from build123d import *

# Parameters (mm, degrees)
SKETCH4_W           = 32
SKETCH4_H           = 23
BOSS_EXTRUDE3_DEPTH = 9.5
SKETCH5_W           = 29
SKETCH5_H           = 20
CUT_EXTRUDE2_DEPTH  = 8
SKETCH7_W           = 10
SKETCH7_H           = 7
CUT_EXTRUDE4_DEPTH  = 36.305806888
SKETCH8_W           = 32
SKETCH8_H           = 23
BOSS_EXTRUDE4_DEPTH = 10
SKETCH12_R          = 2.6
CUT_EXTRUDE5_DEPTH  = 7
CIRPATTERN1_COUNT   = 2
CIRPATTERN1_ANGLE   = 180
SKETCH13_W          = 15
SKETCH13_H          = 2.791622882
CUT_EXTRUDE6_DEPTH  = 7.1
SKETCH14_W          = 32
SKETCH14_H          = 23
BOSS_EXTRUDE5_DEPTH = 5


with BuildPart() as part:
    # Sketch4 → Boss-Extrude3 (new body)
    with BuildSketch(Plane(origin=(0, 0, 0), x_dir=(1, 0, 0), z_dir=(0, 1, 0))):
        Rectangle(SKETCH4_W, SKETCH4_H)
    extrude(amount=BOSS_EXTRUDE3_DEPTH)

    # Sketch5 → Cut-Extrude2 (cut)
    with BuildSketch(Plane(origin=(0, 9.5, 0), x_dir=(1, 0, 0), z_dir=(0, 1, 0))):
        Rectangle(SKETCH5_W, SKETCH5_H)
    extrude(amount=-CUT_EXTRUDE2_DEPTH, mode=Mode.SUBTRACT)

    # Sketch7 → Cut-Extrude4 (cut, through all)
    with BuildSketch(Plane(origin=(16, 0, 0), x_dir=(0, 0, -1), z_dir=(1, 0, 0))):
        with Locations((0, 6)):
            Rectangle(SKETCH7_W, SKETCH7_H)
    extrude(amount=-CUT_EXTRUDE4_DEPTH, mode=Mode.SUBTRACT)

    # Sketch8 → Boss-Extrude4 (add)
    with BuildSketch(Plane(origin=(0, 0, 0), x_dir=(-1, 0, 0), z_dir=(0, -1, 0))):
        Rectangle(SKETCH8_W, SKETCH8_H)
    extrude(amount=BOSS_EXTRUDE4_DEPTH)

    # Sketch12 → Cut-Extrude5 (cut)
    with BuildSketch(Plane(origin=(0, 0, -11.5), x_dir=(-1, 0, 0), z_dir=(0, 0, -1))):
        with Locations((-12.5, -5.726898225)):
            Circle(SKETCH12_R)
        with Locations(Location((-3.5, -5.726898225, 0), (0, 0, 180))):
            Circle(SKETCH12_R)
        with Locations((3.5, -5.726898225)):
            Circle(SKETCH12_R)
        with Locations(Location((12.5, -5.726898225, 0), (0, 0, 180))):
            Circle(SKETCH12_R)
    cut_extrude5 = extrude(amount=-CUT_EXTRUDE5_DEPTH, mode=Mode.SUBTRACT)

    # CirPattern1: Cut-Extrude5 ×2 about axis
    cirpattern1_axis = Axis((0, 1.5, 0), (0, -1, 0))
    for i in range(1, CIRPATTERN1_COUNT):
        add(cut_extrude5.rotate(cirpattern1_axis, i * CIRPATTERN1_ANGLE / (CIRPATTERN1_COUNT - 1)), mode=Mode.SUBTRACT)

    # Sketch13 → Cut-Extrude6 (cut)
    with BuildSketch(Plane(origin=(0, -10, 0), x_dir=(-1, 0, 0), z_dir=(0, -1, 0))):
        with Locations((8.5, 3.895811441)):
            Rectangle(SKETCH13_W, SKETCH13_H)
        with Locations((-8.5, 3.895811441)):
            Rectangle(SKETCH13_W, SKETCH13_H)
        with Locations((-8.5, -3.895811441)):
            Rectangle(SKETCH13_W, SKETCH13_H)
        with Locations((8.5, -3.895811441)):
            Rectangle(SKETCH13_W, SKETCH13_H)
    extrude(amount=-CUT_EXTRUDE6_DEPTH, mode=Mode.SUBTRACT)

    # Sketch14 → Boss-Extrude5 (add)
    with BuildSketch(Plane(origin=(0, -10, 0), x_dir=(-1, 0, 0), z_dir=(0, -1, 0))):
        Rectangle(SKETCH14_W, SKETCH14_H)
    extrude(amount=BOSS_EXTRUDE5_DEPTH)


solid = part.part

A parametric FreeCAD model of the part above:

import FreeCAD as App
import Part
import Sketcher
from FreeCAD import Vector

doc = App.newDocument("Part")
body = doc.addObject("PartDesign::Body", "Body")

# Sketch on XZ plane
sketch1 = doc.addObject("Sketcher::SketchObject", "Sketch")
body.addObject(sketch1)
sketch1.AttachmentSupport = (doc.XZ_Plane, [""])
sketch1.MapMode = "FlatFace"
sketch1.addGeometry([
    Part.LineSegment(Vector(-16, -12, 0), Vector(-16, 12, 0)),
    Part.LineSegment(Vector(-16, 12, 0), Vector(16, 12, 0)),
    Part.LineSegment(Vector(16, 12, 0), Vector(16, -12, 0)),
    Part.LineSegment(Vector(16, -12, 0), Vector(-16, -12, 0)),
], False)
sketch1.addConstraint([
    Sketcher.Constraint("Coincident", 0, 2, 1, 1),
    Sketcher.Constraint("Coincident", 1, 2, 2, 1),
    Sketcher.Constraint("Coincident", 2, 2, 3, 1),
    Sketcher.Constraint("Coincident", 3, 2, 0, 1),
    Sketcher.Constraint("Vertical", 0),
    Sketcher.Constraint("Horizontal", 1),
    Sketcher.Constraint("Vertical", 2),
    Sketcher.Constraint("Horizontal", 3),
    Sketcher.Constraint("Symmetric", 0, 2, 2, 2, -1, 1),
    Sketcher.Constraint("DistanceX", 1, 1, 1, 2, 32.0),
    Sketcher.Constraint("DistanceY", 0, 1, 0, 2, 23.0),
])
pad1 = doc.addObject("PartDesign::Pad", "Pad")
body.addObject(pad1)
pad1.Profile = sketch1
pad1.Length = 9.5
pad1.Reversed = True

# Sketch on XZ plane
sketch2 = doc.addObject("Sketcher::SketchObject", "Sketch001")
body.addObject(sketch2)
sketch2.AttachmentSupport = (doc.XZ_Plane, [""])
sketch2.MapMode = "FlatFace"
sketch2.AttachmentOffset = App.Placement(Vector(0, 0, -9.5), App.Rotation())
sketch2.addGeometry([
    Part.LineSegment(Vector(-14, -10, 0), Vector(-14, 10, 0)),
    Part.LineSegment(Vector(-14, 10, 0), Vector(14, 10, 0)),
    Part.LineSegment(Vector(14, 10, 0), Vector(14, -10, 0)),
    Part.LineSegment(Vector(14, -10, 0), Vector(-14, -10, 0)),
], False)
sketch2.addConstraint([
    Sketcher.Constraint("Coincident", 0, 2, 1, 1),
    Sketcher.Constraint("Coincident", 1, 2, 2, 1),
    Sketcher.Constraint("Coincident", 2, 2, 3, 1),
    Sketcher.Constraint("Coincident", 3, 2, 0, 1),
    Sketcher.Constraint("Vertical", 0),
    Sketcher.Constraint("Horizontal", 1),
    Sketcher.Constraint("Vertical", 2),
    Sketcher.Constraint("Horizontal", 3),
    Sketcher.Constraint("Symmetric", 0, 2, 2, 2, -1, 1),
    Sketcher.Constraint("DistanceX", 1, 1, 1, 2, 29.0),
    Sketcher.Constraint("DistanceY", 0, 1, 0, 2, 20.0),
])
pocket1 = doc.addObject("PartDesign::Pocket", "Pocket")
body.addObject(pocket1)
pocket1.Profile = sketch2
pocket1.Length = 8
pocket1.Reversed = True

# Sketch on YZ plane
sketch3 = doc.addObject("Sketcher::SketchObject", "Sketch002")
body.addObject(sketch3)
sketch3.AttachmentSupport = (doc.YZ_Plane, [""])
sketch3.MapMode = "FlatFace"
sketch3.AttachmentOffset = App.Placement(Vector(0, 0, 16), App.Rotation())
sketch3.addGeometry([
    Part.LineSegment(Vector(10, 5, 0), Vector(2, 5, 0)),
    Part.LineSegment(Vector(2, 5, 0), Vector(2, -5, 0)),
    Part.LineSegment(Vector(2, -5, 0), Vector(10, -5, 0)),
    Part.LineSegment(Vector(10, -5, 0), Vector(10, 5, 0)),
], False)
sketch3.addConstraint([
    Sketcher.Constraint("Coincident", 0, 2, 1, 1),
    Sketcher.Constraint("Coincident", 1, 2, 2, 1),
    Sketcher.Constraint("Coincident", 2, 2, 3, 1),
    Sketcher.Constraint("Coincident", 3, 2, 0, 1),
    Sketcher.Constraint("Horizontal", 0),
    Sketcher.Constraint("Vertical", 1),
    Sketcher.Constraint("Horizontal", 2),
    Sketcher.Constraint("Vertical", 3),
    Sketcher.Constraint("DistanceX", 0, 2, 0, 1, 7.0),
    Sketcher.Constraint("DistanceY", 1, 2, 1, 1, 10.0),
    Sketcher.Constraint("DistanceY", -1, 1, 0, 2, 5.0),
    Sketcher.Constraint("DistanceX", -1, 1, 0, 2, 2.5),
])
pocket2 = doc.addObject("PartDesign::Pocket", "Pocket001")
body.addObject(pocket2)
pocket2.Profile = sketch3
pocket2.Type = "ThroughAll"

# Sketch on XZ plane
sketch4 = doc.addObject("Sketcher::SketchObject", "Sketch003")
body.addObject(sketch4)
sketch4.AttachmentSupport = (doc.XZ_Plane, [""])
sketch4.MapMode = "FlatFace"
sketch4.addGeometry([
    Part.LineSegment(Vector(16, -12, 0), Vector(16, 12, 0)),
    Part.LineSegment(Vector(16, 12, 0), Vector(-16, 12, 0)),
    Part.LineSegment(Vector(-16, 12, 0), Vector(-16, -12, 0)),
    Part.LineSegment(Vector(-16, -12, 0), Vector(16, -12, 0)),
], False)
sketch4.addConstraint([
    Sketcher.Constraint("Coincident", 0, 2, 1, 1),
    Sketcher.Constraint("Coincident", 1, 2, 2, 1),
    Sketcher.Constraint("Coincident", 2, 2, 3, 1),
    Sketcher.Constraint("Coincident", 3, 2, 0, 1),
    Sketcher.Constraint("Vertical", 0),
    Sketcher.Constraint("Horizontal", 1),
    Sketcher.Constraint("Vertical", 2),
    Sketcher.Constraint("Horizontal", 3),
    Sketcher.Constraint("Symmetric", 0, 2, 2, 2, -1, 1),
    Sketcher.Constraint("DistanceX", 1, 2, 1, 1, 32.0),
    Sketcher.Constraint("DistanceY", 0, 1, 0, 2, 23.0),
])
pad2 = doc.addObject("PartDesign::Pad", "Pad001")
body.addObject(pad2)
pad2.Profile = sketch4
pad2.Length = 10

# Sketch on XY plane
sketch5 = doc.addObject("Sketcher::SketchObject", "Sketch004")
body.addObject(sketch5)
sketch5.AttachmentSupport = (doc.XY_Plane, [""])
sketch5.MapMode = "FlatFace"
sketch5.AttachmentOffset = App.Placement(Vector(0, 0, -11.5), App.Rotation())
sketch5.addGeometry([
    Part.Circle(Vector(12.5, -5.7, 0), Vector(0, 0, 1), 2.6),
    Part.Circle(Vector(3.5, -5.7, 0), Vector(0, 0, 1), 2.6),
    Part.Circle(Vector(-3.5, -5.7, 0), Vector(0, 0, 1), 2.6),
    Part.Circle(Vector(-12.5, -5.7, 0), Vector(0, 0, 1), 2.6),
], False)
sketch5.addConstraint([
    Sketcher.Constraint("Equal", 0, 1),
    Sketcher.Constraint("Equal", 1, 2),
    Sketcher.Constraint("Equal", 2, 3),
    Sketcher.Constraint("Symmetric", 1, 3, 2, 3, -2),
    Sketcher.Constraint("Symmetric", 0, 3, 3, 3, -2),
    Sketcher.Constraint("Horizontal", 0, 3, 1, 3),
    Sketcher.Constraint("Diameter", 0, 5.2),
    Sketcher.Constraint("DistanceX", 1, 3, 0, 3, 9.0),
    Sketcher.Constraint("DistanceX", 2, 3, 1, 3, 7.0),
    Sketcher.Constraint("DistanceY", 0, 3, -1, 1, 5.726898),
])
pocket3 = doc.addObject("PartDesign::Pocket", "Pocket002")
body.addObject(pocket3)
pocket3.Profile = sketch5
pocket3.Length = 7
pocket3.Reversed = True
doc.recompute()

polarpattern = doc.addObject("PartDesign::PolarPattern", "PolarPattern")
body.addObject(polarpattern)
polarpattern.Originals = [pocket3]
polarpattern.Axis = (doc.Y_Axis, [""])
polarpattern.Angle = 360
polarpattern.Occurrences = 2
body.Tip = polarpattern

# Sketch on XZ plane
sketch6 = doc.addObject("Sketcher::SketchObject", "Sketch005")
body.addObject(sketch6)
sketch6.AttachmentSupport = (doc.XZ_Plane, [""])
sketch6.MapMode = "FlatFace"
sketch6.AttachmentOffset = App.Placement(Vector(0, 0, 10), App.Rotation())
sketch6.addGeometry([
    Part.LineSegment(Vector(-1, -5.3, 0), Vector(-1, -2.5, 0)),  # 0
    Part.LineSegment(Vector(-1, -2.5, 0), Vector(-16, -2.5, 0)),  # 1
    Part.LineSegment(Vector(-16, -2.5, 0), Vector(-16, -5.3, 0)),  # 2
    Part.LineSegment(Vector(-16, -5.3, 0), Vector(-1, -5.3, 0)),  # 3
    Part.LineSegment(Vector(16, -5.3, 0), Vector(16, -2.5, 0)),  # 4
    Part.LineSegment(Vector(16, -2.5, 0), Vector(1, -2.5, 0)),  # 5
    Part.LineSegment(Vector(1, -2.5, 0), Vector(1, -5.3, 0)),  # 6
    Part.LineSegment(Vector(1, -5.3, 0), Vector(16, -5.3, 0)),  # 7
    Part.LineSegment(Vector(16, 2.5, 0), Vector(16, 5.3, 0)),  # 8
    Part.LineSegment(Vector(16, 5.3, 0), Vector(1, 5.3, 0)),  # 9
    Part.LineSegment(Vector(1, 5.3, 0), Vector(1, 2.5, 0)),  # 10
    Part.LineSegment(Vector(1, 2.5, 0), Vector(16, 2.5, 0)),  # 11
    Part.LineSegment(Vector(-1, 2.5, 0), Vector(-1, 5.3, 0)),  # 12
    Part.LineSegment(Vector(-1, 5.3, 0), Vector(-16, 5.3, 0)),  # 13
    Part.LineSegment(Vector(-16, 5.3, 0), Vector(-16, 2.5, 0)),  # 14
    Part.LineSegment(Vector(-16, 2.5, 0), Vector(-1, 2.5, 0)),  # 15
], False)
sketch6.addConstraint([
    Sketcher.Constraint("Coincident", 0, 2, 1, 1),
    Sketcher.Constraint("Coincident", 1, 2, 2, 1),
    Sketcher.Constraint("Coincident", 2, 2, 3, 1),
    Sketcher.Constraint("Coincident", 3, 2, 0, 1),
    Sketcher.Constraint("Coincident", 4, 2, 5, 1),
    Sketcher.Constraint("Coincident", 5, 2, 6, 1),
    Sketcher.Constraint("Coincident", 6, 2, 7, 1),
    Sketcher.Constraint("Coincident", 7, 2, 4, 1),
    Sketcher.Constraint("Coincident", 8, 2, 9, 1),
    Sketcher.Constraint("Coincident", 9, 2, 10, 1),
    Sketcher.Constraint("Coincident", 10, 2, 11, 1),
    Sketcher.Constraint("Coincident", 11, 2, 8, 1),
    Sketcher.Constraint("Coincident", 12, 2, 13, 1),
    Sketcher.Constraint("Coincident", 13, 2, 14, 1),
    Sketcher.Constraint("Coincident", 14, 2, 15, 1),
    Sketcher.Constraint("Coincident", 15, 2, 12, 1),
    Sketcher.Constraint("Vertical", 0),
    Sketcher.Constraint("Horizontal", 1),
    Sketcher.Constraint("Vertical", 2),
    Sketcher.Constraint("Horizontal", 3),
    Sketcher.Constraint("Vertical", 4),
    Sketcher.Constraint("Horizontal", 5),
    Sketcher.Constraint("Vertical", 6),
    Sketcher.Constraint("Horizontal", 7),
    Sketcher.Constraint("Vertical", 8),
    Sketcher.Constraint("Horizontal", 9),
    Sketcher.Constraint("Vertical", 10),
    Sketcher.Constraint("Horizontal", 11),
    Sketcher.Constraint("Vertical", 12),
    Sketcher.Constraint("Horizontal", 13),
    Sketcher.Constraint("Vertical", 14),
    Sketcher.Constraint("Horizontal", 15),
    Sketcher.Constraint("Symmetric", 2, 2, 8, 2, -1, 1),
    Sketcher.Constraint("Symmetric", 0, 2, 10, 2, -1, 1),
    Sketcher.Constraint("Symmetric", 6, 2, 12, 2, -1, 1),
    Sketcher.Constraint("Symmetric", 4, 2, 14, 2, -1, 1),
    Sketcher.Constraint("Symmetric", 1, 2, 4, 2, -2),
    Sketcher.Constraint("Symmetric", 3, 2, 6, 2, -2),
    Sketcher.Constraint("DistanceX", 1, 2, 1, 1, 15.0),
    Sketcher.Constraint("DistanceX", 0, 2, -1, 1, 1.0),
    Sketcher.Constraint("DistanceY", 5, 2, 10, 2, 5.0),
    Sketcher.Constraint("DistanceY", 0, 1, 0, 2, 2.791623),
])
pocket4 = doc.addObject("PartDesign::Pocket", "Pocket003")
body.addObject(pocket4)
pocket4.Profile = sketch6
pocket4.Length = 7.1

# Sketch on XZ plane
sketch7 = doc.addObject("Sketcher::SketchObject", "Sketch006")
body.addObject(sketch7)
sketch7.AttachmentSupport = (doc.XZ_Plane, [""])
sketch7.MapMode = "FlatFace"
sketch7.AttachmentOffset = App.Placement(Vector(0, 0, 10), App.Rotation())
sketch7.addGeometry([
    Part.LineSegment(Vector(16, -12, 0), Vector(16, 12, 0)),
    Part.LineSegment(Vector(16, 12, 0), Vector(-16, 12, 0)),
    Part.LineSegment(Vector(-16, 12, 0), Vector(-16, -12, 0)),
    Part.LineSegment(Vector(-16, -12, 0), Vector(16, -12, 0)),
], False)
sketch7.addConstraint([
    Sketcher.Constraint("Coincident", 0, 2, 1, 1),
    Sketcher.Constraint("Coincident", 1, 2, 2, 1),
    Sketcher.Constraint("Coincident", 2, 2, 3, 1),
    Sketcher.Constraint("Coincident", 3, 2, 0, 1),
    Sketcher.Constraint("Vertical", 0),
    Sketcher.Constraint("Horizontal", 1),
    Sketcher.Constraint("Vertical", 2),
    Sketcher.Constraint("Horizontal", 3),
    Sketcher.Constraint("Symmetric", 0, 2, 2, 2, -1, 1),
    Sketcher.Constraint("DistanceX", 1, 2, 1, 1, 32.0),
    Sketcher.Constraint("DistanceY", 0, 1, 0, 2, 23.0),
])
pad3 = doc.addObject("PartDesign::Pad", "Pad002")
body.addObject(pad3)
pad3.Profile = sketch7
pad3.Length = 5

doc.recompute()
